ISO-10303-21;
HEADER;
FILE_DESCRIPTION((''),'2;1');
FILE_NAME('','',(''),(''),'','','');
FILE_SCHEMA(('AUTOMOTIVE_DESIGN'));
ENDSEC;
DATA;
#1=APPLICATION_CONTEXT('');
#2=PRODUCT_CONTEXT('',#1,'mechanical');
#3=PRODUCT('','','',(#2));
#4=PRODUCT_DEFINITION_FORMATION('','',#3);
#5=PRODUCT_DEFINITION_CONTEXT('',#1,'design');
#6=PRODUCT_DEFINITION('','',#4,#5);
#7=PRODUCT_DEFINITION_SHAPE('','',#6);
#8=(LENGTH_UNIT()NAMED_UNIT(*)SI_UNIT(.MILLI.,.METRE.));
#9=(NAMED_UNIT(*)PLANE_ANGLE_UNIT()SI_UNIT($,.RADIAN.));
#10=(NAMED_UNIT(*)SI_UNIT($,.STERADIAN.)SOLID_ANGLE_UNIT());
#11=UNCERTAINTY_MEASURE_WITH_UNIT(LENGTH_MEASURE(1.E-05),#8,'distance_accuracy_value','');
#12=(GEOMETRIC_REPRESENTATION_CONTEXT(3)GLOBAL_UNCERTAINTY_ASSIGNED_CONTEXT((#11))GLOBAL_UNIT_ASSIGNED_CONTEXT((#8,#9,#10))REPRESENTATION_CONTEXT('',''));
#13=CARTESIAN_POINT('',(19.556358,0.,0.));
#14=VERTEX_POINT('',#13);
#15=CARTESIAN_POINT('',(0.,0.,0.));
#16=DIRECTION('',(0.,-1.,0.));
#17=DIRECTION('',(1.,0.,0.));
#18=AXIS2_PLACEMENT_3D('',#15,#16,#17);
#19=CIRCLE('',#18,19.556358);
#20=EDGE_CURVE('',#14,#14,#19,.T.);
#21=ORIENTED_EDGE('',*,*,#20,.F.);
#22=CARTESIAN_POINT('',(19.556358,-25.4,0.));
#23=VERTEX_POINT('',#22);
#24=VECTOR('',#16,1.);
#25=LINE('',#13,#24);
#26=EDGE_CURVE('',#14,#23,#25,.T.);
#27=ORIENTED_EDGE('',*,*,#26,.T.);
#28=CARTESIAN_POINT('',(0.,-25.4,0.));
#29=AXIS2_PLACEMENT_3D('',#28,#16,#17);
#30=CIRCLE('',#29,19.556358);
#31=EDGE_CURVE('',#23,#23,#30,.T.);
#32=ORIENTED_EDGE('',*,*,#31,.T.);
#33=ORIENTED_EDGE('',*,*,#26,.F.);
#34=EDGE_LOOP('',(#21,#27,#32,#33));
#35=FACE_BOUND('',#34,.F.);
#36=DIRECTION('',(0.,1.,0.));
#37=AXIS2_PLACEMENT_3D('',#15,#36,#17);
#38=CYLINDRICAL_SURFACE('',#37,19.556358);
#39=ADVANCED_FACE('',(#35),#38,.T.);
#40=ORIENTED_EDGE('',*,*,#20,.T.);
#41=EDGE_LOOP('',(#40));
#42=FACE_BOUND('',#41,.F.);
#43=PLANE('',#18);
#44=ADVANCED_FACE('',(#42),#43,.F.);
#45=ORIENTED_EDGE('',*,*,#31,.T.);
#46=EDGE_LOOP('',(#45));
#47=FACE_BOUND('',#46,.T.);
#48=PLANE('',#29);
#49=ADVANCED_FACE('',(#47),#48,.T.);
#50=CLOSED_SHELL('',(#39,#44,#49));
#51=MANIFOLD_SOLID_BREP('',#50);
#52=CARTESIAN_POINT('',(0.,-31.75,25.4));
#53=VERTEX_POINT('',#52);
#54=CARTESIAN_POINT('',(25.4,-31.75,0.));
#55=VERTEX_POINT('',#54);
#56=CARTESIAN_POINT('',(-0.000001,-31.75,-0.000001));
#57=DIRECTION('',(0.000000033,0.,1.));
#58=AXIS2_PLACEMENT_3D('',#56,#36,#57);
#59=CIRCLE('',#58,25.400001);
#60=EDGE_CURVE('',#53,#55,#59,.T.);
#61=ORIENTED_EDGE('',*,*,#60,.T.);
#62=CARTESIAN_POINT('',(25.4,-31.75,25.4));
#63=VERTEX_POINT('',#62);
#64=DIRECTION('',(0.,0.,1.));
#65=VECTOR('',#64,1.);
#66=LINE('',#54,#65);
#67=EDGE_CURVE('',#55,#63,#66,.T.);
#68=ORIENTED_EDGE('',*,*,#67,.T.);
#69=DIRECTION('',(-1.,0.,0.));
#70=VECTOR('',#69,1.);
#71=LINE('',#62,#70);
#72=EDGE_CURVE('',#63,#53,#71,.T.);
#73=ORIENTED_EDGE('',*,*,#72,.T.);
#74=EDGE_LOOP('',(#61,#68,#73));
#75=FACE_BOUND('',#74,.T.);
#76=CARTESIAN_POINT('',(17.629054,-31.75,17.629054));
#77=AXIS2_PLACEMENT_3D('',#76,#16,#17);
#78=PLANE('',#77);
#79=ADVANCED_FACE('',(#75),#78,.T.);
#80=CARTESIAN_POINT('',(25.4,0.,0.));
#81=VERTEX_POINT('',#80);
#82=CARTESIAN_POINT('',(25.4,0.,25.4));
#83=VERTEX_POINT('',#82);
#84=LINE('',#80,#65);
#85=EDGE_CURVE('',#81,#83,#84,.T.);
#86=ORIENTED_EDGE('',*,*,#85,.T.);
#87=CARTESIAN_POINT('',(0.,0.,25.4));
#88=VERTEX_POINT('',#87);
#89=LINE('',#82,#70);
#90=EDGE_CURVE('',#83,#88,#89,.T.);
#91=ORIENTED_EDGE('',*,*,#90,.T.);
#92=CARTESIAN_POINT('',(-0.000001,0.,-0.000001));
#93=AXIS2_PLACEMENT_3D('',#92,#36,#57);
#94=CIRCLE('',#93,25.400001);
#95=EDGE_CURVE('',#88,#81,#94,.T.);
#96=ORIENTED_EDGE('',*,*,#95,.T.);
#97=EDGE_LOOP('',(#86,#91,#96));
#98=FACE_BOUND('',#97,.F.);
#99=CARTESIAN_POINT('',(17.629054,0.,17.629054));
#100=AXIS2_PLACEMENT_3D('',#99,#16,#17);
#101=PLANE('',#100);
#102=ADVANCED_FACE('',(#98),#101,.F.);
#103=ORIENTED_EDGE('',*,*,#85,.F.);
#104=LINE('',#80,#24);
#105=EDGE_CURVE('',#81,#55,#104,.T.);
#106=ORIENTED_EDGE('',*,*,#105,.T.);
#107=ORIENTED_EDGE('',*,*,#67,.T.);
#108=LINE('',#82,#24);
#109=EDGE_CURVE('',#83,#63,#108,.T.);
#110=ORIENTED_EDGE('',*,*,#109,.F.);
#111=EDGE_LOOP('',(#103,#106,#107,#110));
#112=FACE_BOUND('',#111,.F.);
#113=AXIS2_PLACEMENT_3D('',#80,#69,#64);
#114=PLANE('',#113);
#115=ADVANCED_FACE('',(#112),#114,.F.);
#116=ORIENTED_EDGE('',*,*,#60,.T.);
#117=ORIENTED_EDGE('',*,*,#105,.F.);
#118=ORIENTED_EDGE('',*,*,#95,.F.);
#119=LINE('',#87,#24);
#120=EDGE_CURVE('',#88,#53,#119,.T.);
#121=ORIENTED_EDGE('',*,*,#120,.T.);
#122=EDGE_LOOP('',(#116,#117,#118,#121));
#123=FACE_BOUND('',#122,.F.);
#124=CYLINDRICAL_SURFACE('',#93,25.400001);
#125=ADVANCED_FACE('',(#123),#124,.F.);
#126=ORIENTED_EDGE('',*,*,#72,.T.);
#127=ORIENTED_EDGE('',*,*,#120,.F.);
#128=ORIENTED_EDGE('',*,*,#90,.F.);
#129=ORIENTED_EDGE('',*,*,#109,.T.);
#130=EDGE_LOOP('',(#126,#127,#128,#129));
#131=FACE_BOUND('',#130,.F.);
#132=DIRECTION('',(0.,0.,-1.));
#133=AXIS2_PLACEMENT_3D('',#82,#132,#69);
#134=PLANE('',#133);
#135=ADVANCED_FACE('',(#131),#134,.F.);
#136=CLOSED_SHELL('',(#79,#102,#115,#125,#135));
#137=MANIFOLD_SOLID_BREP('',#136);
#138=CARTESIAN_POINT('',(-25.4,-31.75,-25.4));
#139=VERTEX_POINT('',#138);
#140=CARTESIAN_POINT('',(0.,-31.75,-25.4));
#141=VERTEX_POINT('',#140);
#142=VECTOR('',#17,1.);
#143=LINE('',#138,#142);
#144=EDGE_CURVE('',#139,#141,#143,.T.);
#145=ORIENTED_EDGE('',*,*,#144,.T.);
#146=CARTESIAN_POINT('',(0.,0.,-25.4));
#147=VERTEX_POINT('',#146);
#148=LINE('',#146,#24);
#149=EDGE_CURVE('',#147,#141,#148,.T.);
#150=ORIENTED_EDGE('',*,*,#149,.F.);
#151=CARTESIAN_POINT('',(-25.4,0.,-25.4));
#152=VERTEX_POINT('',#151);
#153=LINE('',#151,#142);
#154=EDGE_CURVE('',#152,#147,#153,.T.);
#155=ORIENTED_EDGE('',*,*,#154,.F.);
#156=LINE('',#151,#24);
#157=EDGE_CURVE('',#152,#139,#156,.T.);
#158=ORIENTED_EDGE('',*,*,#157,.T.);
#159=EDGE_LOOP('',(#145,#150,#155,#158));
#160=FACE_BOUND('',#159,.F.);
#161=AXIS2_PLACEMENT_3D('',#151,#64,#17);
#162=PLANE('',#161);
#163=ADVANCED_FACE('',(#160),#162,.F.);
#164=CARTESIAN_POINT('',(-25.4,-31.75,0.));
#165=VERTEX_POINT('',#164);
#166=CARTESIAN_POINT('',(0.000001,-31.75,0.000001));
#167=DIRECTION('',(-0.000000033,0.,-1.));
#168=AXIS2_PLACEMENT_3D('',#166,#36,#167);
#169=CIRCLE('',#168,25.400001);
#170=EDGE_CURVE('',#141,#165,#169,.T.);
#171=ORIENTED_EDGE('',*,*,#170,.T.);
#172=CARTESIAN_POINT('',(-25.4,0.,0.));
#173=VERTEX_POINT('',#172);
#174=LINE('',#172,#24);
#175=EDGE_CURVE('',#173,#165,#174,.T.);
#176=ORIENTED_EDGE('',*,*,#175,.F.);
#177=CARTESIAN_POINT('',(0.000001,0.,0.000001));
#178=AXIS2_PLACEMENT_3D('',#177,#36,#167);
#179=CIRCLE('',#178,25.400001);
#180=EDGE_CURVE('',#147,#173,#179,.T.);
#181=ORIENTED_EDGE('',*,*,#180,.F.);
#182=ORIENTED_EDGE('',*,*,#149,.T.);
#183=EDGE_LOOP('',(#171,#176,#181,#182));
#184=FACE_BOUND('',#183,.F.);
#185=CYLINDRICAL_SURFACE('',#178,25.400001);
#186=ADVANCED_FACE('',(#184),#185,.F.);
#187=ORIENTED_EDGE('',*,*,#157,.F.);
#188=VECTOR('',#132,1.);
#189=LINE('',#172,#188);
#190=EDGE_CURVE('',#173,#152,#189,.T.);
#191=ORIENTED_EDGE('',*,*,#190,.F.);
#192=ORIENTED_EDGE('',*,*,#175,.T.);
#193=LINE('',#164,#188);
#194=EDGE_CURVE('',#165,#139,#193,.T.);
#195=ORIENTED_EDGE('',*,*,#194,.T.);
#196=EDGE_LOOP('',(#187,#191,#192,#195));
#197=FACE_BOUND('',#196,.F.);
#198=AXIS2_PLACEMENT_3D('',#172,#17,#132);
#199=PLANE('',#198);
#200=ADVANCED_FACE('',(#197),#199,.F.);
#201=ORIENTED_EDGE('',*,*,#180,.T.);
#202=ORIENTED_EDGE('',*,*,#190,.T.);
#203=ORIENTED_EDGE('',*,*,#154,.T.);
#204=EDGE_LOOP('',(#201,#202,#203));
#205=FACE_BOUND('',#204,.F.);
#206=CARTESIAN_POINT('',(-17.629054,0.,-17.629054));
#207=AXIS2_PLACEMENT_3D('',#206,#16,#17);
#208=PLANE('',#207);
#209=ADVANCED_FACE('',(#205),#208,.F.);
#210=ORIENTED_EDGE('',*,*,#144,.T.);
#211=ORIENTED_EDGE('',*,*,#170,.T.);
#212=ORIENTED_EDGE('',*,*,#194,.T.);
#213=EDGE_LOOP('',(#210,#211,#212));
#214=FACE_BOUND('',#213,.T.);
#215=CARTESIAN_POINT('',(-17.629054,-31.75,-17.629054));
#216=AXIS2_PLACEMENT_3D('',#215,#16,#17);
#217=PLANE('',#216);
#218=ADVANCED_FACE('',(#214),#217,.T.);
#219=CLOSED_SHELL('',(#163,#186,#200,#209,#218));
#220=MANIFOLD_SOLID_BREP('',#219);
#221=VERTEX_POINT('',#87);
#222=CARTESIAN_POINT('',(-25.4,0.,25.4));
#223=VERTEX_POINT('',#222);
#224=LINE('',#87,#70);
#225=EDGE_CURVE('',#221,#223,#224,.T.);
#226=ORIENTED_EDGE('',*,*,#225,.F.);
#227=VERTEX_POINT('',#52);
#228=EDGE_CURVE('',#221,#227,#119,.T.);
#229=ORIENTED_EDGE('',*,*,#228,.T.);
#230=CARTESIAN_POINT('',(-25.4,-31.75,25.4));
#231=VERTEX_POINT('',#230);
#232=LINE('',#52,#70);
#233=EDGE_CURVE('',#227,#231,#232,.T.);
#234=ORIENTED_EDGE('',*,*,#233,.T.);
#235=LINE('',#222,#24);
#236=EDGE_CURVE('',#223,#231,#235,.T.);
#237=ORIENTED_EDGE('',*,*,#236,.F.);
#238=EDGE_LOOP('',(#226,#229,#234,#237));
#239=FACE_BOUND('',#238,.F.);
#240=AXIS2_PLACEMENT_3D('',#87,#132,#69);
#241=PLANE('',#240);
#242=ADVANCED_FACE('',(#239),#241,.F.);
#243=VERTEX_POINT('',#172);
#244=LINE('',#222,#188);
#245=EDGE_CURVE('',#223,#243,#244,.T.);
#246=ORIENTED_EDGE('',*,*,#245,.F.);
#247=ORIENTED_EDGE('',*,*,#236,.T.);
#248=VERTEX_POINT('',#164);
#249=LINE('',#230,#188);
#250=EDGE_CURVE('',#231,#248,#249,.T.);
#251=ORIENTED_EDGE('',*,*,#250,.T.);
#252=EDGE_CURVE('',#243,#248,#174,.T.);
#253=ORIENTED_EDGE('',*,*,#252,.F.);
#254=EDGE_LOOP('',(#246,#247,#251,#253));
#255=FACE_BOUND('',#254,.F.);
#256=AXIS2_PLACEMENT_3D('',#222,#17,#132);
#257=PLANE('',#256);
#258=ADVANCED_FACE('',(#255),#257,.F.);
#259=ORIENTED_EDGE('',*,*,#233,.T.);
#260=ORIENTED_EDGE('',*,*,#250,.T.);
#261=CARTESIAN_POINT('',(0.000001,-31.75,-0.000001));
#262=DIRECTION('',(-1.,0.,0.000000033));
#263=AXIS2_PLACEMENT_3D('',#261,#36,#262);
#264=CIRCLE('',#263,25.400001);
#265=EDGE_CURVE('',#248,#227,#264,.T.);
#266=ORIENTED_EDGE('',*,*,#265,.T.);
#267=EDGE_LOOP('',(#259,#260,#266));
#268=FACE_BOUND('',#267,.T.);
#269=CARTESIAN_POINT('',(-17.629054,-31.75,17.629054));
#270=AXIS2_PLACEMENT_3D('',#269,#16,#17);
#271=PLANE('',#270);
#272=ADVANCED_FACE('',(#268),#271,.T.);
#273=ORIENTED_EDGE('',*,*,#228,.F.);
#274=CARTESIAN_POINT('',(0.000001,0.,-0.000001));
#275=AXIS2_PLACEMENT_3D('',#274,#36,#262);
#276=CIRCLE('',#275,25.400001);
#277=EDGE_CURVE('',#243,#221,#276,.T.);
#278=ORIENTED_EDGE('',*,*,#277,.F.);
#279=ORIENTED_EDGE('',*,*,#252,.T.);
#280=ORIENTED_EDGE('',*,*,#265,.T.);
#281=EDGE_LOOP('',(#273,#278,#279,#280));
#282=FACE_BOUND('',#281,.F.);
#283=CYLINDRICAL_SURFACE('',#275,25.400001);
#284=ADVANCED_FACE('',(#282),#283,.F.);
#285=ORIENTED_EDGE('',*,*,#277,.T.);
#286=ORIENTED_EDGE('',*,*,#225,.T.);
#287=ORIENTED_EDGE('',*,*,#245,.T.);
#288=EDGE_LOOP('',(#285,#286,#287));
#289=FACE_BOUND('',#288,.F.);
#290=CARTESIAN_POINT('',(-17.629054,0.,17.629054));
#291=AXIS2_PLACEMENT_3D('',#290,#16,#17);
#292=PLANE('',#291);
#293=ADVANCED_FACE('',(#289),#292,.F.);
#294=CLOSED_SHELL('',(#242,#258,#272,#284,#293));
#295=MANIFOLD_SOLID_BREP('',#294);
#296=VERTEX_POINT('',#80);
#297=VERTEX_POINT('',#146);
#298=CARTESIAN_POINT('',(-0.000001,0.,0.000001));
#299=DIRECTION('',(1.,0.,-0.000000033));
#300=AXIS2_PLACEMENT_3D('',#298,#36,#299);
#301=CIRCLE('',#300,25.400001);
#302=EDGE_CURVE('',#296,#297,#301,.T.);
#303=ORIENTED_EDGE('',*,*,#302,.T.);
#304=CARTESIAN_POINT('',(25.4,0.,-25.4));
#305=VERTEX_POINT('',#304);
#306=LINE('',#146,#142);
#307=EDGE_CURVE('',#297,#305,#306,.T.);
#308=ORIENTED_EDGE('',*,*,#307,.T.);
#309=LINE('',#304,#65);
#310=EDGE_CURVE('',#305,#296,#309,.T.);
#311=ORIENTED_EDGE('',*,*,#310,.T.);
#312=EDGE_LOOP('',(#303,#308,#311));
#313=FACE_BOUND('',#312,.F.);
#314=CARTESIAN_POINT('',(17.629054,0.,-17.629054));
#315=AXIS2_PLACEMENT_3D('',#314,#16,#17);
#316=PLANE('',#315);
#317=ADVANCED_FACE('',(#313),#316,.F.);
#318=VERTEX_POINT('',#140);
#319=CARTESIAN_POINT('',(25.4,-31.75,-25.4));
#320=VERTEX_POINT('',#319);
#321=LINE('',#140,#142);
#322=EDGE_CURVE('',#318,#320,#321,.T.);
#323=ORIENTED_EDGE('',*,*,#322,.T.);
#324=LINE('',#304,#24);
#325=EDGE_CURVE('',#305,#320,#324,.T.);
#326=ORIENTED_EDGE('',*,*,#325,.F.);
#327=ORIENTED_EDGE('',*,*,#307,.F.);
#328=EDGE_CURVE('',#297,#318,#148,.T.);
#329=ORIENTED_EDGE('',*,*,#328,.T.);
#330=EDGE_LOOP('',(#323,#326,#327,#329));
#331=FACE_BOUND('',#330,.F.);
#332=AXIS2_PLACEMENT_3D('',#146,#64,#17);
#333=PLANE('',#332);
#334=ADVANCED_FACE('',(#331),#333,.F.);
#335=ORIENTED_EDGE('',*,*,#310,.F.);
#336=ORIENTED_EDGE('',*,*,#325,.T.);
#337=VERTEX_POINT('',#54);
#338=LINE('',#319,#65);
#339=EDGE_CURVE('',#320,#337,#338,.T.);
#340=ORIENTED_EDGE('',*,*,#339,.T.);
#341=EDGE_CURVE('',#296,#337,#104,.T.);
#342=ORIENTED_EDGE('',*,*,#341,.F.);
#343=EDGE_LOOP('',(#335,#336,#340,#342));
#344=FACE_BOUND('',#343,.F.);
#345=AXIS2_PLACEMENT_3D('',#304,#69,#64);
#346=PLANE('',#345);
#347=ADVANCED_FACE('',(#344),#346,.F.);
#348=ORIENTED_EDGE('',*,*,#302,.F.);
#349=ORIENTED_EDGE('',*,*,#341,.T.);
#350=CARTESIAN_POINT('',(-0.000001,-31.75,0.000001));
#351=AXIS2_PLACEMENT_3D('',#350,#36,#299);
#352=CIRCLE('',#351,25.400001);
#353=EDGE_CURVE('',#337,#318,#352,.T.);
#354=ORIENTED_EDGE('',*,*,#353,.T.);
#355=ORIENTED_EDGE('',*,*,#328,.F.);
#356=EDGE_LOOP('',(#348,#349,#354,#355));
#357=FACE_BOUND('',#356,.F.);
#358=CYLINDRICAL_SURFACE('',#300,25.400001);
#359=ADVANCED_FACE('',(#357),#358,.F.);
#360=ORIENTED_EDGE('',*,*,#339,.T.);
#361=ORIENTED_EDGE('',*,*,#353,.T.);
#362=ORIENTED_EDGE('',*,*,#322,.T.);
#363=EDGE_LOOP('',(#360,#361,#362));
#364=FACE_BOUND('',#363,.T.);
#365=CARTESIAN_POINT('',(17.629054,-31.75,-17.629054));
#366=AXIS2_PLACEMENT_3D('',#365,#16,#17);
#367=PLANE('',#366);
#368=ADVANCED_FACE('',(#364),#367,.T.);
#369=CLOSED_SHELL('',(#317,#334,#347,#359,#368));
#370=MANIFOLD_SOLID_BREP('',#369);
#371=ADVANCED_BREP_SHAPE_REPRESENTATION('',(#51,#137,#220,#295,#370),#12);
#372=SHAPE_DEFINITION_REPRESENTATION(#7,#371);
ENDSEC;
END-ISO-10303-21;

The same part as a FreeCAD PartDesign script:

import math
import FreeCAD as App
import Part
import Sketcher
Q = App.Units.Quantity

doc = App.newDocument("Part")
body = doc.addObject("PartDesign::Body", "Body")
body.AllowCompound = True

sketch1 = body.newObject("Sketcher::SketchObject", "Sketch")
sketch1.AttachmentSupport = (doc.getObject("XZ_Plane"), [""])
sketch1.MapMode = "FlatFace"
sketch1.addGeometry([
    Part.LineSegment(App.Vector(0, 25, 0), App.Vector(-25, 25, 0)),
    Part.LineSegment(App.Vector(-25, 25, 0), App.Vector(-25, 0, 0)),
    Part.ArcOfCircle(Part.Circle(App.Vector(0, 0, 0), App.Vector(0, 0, 1), 25), math.radians(90), math.radians(180)),
    Part.LineSegment(App.Vector(25, 25, 0), App.Vector(0, 25, 0)),
    Part.ArcOfCircle(Part.Circle(App.Vector(0, 0, 0), App.Vector(0, 0, 1), 25), math.radians(0), math.radians(90)),
    Part.LineSegment(App.Vector(25, 0, 0), App.Vector(25, 25, 0)),
    Part.LineSegment(App.Vector(25, -25, 0), App.Vector(25, 0, 0)),
    Part.ArcOfCircle(Part.Circle(App.Vector(0, 0, 0), App.Vector(0, 0, 1), 25), math.radians(-90), math.radians(0)),
    Part.LineSegment(App.Vector(0, -25, 0), App.Vector(25, -25, 0)),
    Part.ArcOfCircle(Part.Circle(App.Vector(0, 0, 0), App.Vector(0, 0, 1), 25), math.radians(-180), math.radians(-90)),
    Part.LineSegment(App.Vector(-25, 0, 0), App.Vector(-25, -25, 0)),
    Part.LineSegment(App.Vector(-25, -25, 0), App.Vector(0, -25, 0)),
], False)
sketch1.addConstraint([
    Sketcher.Constraint("Coincident", 0, 2, 1, 1),
    Sketcher.Constraint("Tangent", 1, 2, 2, 2),
    Sketcher.Constraint("Tangent", 2, 1, 0, 1),
    Sketcher.Constraint("Tangent", 3, 2, 4, 2),
    Sketcher.Constraint("Tangent", 4, 1, 5, 1),
    Sketcher.Constraint("Coincident", 5, 2, 3, 1),
    Sketcher.Constraint("Tangent", 6, 2, 7, 2),
    Sketcher.Constraint("Tangent", 7, 1, 8, 1),
    Sketcher.Constraint("Coincident", 8, 2, 6, 1),
    Sketcher.Constraint("Tangent", 9, 1, 10, 1),
    Sketcher.Constraint("Coincident", 10, 2, 11, 1),
    Sketcher.Constraint("Tangent", 11, 2, 9, 2),
    Sketcher.Constraint("Horizontal", 0),
    Sketcher.Constraint("Vertical", 1),
    Sketcher.Constraint("Horizontal", 3),
    Sketcher.Constraint("Vertical", 5),
    Sketcher.Constraint("Vertical", 6),
    Sketcher.Constraint("Horizontal", 8),
    Sketcher.Constraint("Vertical", 10),
    Sketcher.Constraint("Horizontal", 11),
    Sketcher.Constraint("Coincident", 2, 3, -1, 1),
    Sketcher.Constraint("Coincident", 4, 3, -1, 1),
    Sketcher.Constraint("Coincident", 7, 3, -1, 1),
    Sketcher.Constraint("Coincident", 9, 3, -1, 1),
    Sketcher.Constraint("Equal", 2, 4),
    Sketcher.Constraint("Equal", 4, 7),
    Sketcher.Constraint("Equal", 7, 9),
    Sketcher.Constraint("Radius", 2, Q("1 in")),
])
pad1 = body.newObject("PartDesign::Pad", "Pad")
pad1.Profile = sketch1
pad1.Length = Q("1.25 in")
body2 = doc.addObject("PartDesign::Body", "Body001")

sketch2 = body2.newObject("Sketcher::SketchObject", "Sketch001")
sketch2.AttachmentSupport = (doc.getObject("XZ_Plane001"), [""])
sketch2.MapMode = "FlatFace"
sketch2.addGeometry(Part.Circle(App.Vector(0, 0, 0), App.Vector(0, 0, 1), 13), False)
sketch2.addConstraint([
    Sketcher.Constraint("Coincident", 0, 3, -1, 1),
    Sketcher.Constraint("Diameter", 0, Q("1 in")),
])
pad2 = body2.newObject("PartDesign::Pad", "Pad001")
pad2.Profile = sketch2
pad2.Length = Q("1 in")

sketch3 = body2.newObject("Sketcher::SketchObject", "Sketch002")
sketch3.AttachmentSupport = (doc.getObject("XZ_Plane001"), [""])
sketch3.MapMode = "FlatFace"
sketch3.addGeometry(Part.Circle(App.Vector(0, 0, 0), App.Vector(0, 0, 1), 20), False)
sketch3.addConstraint([
    Sketcher.Constraint("Coincident", 0, 3, -1, 1),
    Sketcher.Constraint("Diameter", 0, 39.112716),
])
pad3 = body2.newObject("PartDesign::Pad", "Pad002")
pad3.Profile = sketch3
pad3.Length = Q("1 in")

doc.recompute()
